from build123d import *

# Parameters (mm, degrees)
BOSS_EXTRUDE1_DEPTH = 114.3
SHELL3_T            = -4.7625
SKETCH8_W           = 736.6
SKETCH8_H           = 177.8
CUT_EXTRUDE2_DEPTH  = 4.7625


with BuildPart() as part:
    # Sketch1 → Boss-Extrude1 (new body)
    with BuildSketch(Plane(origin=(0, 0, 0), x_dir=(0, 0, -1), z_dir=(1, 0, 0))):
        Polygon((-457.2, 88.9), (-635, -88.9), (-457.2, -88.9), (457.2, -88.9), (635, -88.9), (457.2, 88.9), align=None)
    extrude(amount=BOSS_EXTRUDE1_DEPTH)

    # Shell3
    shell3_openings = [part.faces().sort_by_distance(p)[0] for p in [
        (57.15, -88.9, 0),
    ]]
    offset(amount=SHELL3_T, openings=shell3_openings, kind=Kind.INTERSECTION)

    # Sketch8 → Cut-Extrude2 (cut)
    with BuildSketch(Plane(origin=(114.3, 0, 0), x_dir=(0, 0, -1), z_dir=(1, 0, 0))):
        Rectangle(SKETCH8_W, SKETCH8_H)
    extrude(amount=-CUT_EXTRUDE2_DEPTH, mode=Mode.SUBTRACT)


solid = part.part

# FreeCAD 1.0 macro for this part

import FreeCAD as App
import Part
import Sketcher
from FreeCAD import Vector
Q = App.Units.Quantity


def faces_at(feature, points):
    """Names of the faces that lie closest to the given points."""
    faces = feature.Shape.Faces
    near = lambda p: min(range(len(faces)), key=lambda i: faces[i].distToShape(Part.Vertex(*p))[0])
    return sorted({f"Face{near(p) + 1}" for p in points})


def add_polygon(sketch, points):
    """Adds a closed chain of lines whose ends are joined by coincident constraints."""
    first, n = sketch.GeometryCount, len(points)
    for a, b in zip(points, points[1:] + points[:1]):
        sketch.addGeometry(Part.LineSegment(App.Vector(*a, 0), App.Vector(*b, 0)), False)
    for i in range(n):
        sketch.addConstraint(Sketcher.Constraint("Coincident", first + i, 2, first + (i + 1) % n, 1))

doc = App.newDocument("Part")
params = doc.addObject("Spreadsheet::Sheet", "Params")
for row, (alias, value) in enumerate([
    ("sketch1_height", "50 in"),
    ("sketch1_height2", "36 in"),
    ("pad1_length", "4.5 in"),
    ("thickness_wall", "0.1875 in"),
    ("sketch2_width", "7 in"),
    ("sketch2_height", "29 in"),
    ("pocket1_length", "0.1875 in"),
], start=1):
    params.set(f"A{row}", alias)
    params.set(f"B{row}", "=" + value)
    params.setAlias(f"B{row}", alias)

body = doc.addObject("PartDesign::Body", "Body")

sketch1 = body.newObject("Sketcher::SketchObject", "Sketch")
sketch1.AttachmentSupport = (doc.getObject("YZ_Plane"), [""])
sketch1.MapMode = "FlatFace"
add_polygon(sketch1, [(89, 457), (-89, 635), (-89, -635), (89, -457)])
sketch1.addConstraint([
    Sketcher.Constraint("Vertical", 1),
    Sketcher.Constraint("Vertical", 3),
    Sketcher.Constraint("Perpendicular", 0, 2),
    Sketcher.Constraint("Equal", 0, 2),
    Sketcher.Constraint("DistanceY", 1, 2, 1, 1, Q("50 in")),
    Sketcher.Constraint("DistanceY", 3, 1, 3, 2, Q("36 in")),
    Sketcher.Constraint("DistanceY", -1, 1, 0, 2, Q("25 in")),
    Sketcher.Constraint("DistanceX", 0, 2, -1, 1, Q("3.5 in")),
])
sketch1.setExpression("Constraints[8]", "Params.sketch1_height")
sketch1.setExpression("Constraints[9]", "Params.sketch1_height2")
pad1 = body.newObject("PartDesign::Pad", "Pad")
pad1.Profile = sketch1
pad1.setExpression("Length", "Params.pad1_length")
doc.recompute()

thickness = body.newObject("PartDesign::Thickness", "Thickness")
thickness.Base = (pad1, faces_at(pad1, [(57.15, -88.9, 0)]))
thickness.setExpression("Value", "Params.thickness_wall")
thickness.Reversed = True
thickness.Join = "Intersection"

sketch2 = body.newObject("Sketcher::SketchObject", "Sketch001")
sketch2.AttachmentSupport = (doc.getObject("YZ_Plane"), [""])
sketch2.MapMode = "FlatFace"
sketch2.AttachmentOffset = App.Placement(Vector(0, 0, 4.5 * 25.4), App.Rotation())
add_polygon(sketch2, [(89, 368), (-89, 368), (-89, -368), (89, -368)])
sketch2.addConstraint([
    Sketcher.Constraint("Horizontal", 0),
    Sketcher.Constraint("Vertical", 1),
    Sketcher.Constraint("Horizontal", 2),
    Sketcher.Constraint("Vertical", 3),
    Sketcher.Constraint("Symmetric", 0, 2, 2, 2, -1, 1),
    Sketcher.Constraint("DistanceX", 0, 2, 0, 1, Q("7 in")),
    Sketcher.Constraint("DistanceY", 1, 2, 1, 1, Q("29 in")),
])
sketch2.setExpression("Constraints[9]", "Params.sketch2_width")
sketch2.setExpression("Constraints[10]", "Params.sketch2_height")
pocket1 = body.newObject("PartDesign::Pocket", "Pocket")
pocket1.Profile = sketch2
pocket1.setExpression("Length", "Params.pocket1_length")

doc.recompute()
